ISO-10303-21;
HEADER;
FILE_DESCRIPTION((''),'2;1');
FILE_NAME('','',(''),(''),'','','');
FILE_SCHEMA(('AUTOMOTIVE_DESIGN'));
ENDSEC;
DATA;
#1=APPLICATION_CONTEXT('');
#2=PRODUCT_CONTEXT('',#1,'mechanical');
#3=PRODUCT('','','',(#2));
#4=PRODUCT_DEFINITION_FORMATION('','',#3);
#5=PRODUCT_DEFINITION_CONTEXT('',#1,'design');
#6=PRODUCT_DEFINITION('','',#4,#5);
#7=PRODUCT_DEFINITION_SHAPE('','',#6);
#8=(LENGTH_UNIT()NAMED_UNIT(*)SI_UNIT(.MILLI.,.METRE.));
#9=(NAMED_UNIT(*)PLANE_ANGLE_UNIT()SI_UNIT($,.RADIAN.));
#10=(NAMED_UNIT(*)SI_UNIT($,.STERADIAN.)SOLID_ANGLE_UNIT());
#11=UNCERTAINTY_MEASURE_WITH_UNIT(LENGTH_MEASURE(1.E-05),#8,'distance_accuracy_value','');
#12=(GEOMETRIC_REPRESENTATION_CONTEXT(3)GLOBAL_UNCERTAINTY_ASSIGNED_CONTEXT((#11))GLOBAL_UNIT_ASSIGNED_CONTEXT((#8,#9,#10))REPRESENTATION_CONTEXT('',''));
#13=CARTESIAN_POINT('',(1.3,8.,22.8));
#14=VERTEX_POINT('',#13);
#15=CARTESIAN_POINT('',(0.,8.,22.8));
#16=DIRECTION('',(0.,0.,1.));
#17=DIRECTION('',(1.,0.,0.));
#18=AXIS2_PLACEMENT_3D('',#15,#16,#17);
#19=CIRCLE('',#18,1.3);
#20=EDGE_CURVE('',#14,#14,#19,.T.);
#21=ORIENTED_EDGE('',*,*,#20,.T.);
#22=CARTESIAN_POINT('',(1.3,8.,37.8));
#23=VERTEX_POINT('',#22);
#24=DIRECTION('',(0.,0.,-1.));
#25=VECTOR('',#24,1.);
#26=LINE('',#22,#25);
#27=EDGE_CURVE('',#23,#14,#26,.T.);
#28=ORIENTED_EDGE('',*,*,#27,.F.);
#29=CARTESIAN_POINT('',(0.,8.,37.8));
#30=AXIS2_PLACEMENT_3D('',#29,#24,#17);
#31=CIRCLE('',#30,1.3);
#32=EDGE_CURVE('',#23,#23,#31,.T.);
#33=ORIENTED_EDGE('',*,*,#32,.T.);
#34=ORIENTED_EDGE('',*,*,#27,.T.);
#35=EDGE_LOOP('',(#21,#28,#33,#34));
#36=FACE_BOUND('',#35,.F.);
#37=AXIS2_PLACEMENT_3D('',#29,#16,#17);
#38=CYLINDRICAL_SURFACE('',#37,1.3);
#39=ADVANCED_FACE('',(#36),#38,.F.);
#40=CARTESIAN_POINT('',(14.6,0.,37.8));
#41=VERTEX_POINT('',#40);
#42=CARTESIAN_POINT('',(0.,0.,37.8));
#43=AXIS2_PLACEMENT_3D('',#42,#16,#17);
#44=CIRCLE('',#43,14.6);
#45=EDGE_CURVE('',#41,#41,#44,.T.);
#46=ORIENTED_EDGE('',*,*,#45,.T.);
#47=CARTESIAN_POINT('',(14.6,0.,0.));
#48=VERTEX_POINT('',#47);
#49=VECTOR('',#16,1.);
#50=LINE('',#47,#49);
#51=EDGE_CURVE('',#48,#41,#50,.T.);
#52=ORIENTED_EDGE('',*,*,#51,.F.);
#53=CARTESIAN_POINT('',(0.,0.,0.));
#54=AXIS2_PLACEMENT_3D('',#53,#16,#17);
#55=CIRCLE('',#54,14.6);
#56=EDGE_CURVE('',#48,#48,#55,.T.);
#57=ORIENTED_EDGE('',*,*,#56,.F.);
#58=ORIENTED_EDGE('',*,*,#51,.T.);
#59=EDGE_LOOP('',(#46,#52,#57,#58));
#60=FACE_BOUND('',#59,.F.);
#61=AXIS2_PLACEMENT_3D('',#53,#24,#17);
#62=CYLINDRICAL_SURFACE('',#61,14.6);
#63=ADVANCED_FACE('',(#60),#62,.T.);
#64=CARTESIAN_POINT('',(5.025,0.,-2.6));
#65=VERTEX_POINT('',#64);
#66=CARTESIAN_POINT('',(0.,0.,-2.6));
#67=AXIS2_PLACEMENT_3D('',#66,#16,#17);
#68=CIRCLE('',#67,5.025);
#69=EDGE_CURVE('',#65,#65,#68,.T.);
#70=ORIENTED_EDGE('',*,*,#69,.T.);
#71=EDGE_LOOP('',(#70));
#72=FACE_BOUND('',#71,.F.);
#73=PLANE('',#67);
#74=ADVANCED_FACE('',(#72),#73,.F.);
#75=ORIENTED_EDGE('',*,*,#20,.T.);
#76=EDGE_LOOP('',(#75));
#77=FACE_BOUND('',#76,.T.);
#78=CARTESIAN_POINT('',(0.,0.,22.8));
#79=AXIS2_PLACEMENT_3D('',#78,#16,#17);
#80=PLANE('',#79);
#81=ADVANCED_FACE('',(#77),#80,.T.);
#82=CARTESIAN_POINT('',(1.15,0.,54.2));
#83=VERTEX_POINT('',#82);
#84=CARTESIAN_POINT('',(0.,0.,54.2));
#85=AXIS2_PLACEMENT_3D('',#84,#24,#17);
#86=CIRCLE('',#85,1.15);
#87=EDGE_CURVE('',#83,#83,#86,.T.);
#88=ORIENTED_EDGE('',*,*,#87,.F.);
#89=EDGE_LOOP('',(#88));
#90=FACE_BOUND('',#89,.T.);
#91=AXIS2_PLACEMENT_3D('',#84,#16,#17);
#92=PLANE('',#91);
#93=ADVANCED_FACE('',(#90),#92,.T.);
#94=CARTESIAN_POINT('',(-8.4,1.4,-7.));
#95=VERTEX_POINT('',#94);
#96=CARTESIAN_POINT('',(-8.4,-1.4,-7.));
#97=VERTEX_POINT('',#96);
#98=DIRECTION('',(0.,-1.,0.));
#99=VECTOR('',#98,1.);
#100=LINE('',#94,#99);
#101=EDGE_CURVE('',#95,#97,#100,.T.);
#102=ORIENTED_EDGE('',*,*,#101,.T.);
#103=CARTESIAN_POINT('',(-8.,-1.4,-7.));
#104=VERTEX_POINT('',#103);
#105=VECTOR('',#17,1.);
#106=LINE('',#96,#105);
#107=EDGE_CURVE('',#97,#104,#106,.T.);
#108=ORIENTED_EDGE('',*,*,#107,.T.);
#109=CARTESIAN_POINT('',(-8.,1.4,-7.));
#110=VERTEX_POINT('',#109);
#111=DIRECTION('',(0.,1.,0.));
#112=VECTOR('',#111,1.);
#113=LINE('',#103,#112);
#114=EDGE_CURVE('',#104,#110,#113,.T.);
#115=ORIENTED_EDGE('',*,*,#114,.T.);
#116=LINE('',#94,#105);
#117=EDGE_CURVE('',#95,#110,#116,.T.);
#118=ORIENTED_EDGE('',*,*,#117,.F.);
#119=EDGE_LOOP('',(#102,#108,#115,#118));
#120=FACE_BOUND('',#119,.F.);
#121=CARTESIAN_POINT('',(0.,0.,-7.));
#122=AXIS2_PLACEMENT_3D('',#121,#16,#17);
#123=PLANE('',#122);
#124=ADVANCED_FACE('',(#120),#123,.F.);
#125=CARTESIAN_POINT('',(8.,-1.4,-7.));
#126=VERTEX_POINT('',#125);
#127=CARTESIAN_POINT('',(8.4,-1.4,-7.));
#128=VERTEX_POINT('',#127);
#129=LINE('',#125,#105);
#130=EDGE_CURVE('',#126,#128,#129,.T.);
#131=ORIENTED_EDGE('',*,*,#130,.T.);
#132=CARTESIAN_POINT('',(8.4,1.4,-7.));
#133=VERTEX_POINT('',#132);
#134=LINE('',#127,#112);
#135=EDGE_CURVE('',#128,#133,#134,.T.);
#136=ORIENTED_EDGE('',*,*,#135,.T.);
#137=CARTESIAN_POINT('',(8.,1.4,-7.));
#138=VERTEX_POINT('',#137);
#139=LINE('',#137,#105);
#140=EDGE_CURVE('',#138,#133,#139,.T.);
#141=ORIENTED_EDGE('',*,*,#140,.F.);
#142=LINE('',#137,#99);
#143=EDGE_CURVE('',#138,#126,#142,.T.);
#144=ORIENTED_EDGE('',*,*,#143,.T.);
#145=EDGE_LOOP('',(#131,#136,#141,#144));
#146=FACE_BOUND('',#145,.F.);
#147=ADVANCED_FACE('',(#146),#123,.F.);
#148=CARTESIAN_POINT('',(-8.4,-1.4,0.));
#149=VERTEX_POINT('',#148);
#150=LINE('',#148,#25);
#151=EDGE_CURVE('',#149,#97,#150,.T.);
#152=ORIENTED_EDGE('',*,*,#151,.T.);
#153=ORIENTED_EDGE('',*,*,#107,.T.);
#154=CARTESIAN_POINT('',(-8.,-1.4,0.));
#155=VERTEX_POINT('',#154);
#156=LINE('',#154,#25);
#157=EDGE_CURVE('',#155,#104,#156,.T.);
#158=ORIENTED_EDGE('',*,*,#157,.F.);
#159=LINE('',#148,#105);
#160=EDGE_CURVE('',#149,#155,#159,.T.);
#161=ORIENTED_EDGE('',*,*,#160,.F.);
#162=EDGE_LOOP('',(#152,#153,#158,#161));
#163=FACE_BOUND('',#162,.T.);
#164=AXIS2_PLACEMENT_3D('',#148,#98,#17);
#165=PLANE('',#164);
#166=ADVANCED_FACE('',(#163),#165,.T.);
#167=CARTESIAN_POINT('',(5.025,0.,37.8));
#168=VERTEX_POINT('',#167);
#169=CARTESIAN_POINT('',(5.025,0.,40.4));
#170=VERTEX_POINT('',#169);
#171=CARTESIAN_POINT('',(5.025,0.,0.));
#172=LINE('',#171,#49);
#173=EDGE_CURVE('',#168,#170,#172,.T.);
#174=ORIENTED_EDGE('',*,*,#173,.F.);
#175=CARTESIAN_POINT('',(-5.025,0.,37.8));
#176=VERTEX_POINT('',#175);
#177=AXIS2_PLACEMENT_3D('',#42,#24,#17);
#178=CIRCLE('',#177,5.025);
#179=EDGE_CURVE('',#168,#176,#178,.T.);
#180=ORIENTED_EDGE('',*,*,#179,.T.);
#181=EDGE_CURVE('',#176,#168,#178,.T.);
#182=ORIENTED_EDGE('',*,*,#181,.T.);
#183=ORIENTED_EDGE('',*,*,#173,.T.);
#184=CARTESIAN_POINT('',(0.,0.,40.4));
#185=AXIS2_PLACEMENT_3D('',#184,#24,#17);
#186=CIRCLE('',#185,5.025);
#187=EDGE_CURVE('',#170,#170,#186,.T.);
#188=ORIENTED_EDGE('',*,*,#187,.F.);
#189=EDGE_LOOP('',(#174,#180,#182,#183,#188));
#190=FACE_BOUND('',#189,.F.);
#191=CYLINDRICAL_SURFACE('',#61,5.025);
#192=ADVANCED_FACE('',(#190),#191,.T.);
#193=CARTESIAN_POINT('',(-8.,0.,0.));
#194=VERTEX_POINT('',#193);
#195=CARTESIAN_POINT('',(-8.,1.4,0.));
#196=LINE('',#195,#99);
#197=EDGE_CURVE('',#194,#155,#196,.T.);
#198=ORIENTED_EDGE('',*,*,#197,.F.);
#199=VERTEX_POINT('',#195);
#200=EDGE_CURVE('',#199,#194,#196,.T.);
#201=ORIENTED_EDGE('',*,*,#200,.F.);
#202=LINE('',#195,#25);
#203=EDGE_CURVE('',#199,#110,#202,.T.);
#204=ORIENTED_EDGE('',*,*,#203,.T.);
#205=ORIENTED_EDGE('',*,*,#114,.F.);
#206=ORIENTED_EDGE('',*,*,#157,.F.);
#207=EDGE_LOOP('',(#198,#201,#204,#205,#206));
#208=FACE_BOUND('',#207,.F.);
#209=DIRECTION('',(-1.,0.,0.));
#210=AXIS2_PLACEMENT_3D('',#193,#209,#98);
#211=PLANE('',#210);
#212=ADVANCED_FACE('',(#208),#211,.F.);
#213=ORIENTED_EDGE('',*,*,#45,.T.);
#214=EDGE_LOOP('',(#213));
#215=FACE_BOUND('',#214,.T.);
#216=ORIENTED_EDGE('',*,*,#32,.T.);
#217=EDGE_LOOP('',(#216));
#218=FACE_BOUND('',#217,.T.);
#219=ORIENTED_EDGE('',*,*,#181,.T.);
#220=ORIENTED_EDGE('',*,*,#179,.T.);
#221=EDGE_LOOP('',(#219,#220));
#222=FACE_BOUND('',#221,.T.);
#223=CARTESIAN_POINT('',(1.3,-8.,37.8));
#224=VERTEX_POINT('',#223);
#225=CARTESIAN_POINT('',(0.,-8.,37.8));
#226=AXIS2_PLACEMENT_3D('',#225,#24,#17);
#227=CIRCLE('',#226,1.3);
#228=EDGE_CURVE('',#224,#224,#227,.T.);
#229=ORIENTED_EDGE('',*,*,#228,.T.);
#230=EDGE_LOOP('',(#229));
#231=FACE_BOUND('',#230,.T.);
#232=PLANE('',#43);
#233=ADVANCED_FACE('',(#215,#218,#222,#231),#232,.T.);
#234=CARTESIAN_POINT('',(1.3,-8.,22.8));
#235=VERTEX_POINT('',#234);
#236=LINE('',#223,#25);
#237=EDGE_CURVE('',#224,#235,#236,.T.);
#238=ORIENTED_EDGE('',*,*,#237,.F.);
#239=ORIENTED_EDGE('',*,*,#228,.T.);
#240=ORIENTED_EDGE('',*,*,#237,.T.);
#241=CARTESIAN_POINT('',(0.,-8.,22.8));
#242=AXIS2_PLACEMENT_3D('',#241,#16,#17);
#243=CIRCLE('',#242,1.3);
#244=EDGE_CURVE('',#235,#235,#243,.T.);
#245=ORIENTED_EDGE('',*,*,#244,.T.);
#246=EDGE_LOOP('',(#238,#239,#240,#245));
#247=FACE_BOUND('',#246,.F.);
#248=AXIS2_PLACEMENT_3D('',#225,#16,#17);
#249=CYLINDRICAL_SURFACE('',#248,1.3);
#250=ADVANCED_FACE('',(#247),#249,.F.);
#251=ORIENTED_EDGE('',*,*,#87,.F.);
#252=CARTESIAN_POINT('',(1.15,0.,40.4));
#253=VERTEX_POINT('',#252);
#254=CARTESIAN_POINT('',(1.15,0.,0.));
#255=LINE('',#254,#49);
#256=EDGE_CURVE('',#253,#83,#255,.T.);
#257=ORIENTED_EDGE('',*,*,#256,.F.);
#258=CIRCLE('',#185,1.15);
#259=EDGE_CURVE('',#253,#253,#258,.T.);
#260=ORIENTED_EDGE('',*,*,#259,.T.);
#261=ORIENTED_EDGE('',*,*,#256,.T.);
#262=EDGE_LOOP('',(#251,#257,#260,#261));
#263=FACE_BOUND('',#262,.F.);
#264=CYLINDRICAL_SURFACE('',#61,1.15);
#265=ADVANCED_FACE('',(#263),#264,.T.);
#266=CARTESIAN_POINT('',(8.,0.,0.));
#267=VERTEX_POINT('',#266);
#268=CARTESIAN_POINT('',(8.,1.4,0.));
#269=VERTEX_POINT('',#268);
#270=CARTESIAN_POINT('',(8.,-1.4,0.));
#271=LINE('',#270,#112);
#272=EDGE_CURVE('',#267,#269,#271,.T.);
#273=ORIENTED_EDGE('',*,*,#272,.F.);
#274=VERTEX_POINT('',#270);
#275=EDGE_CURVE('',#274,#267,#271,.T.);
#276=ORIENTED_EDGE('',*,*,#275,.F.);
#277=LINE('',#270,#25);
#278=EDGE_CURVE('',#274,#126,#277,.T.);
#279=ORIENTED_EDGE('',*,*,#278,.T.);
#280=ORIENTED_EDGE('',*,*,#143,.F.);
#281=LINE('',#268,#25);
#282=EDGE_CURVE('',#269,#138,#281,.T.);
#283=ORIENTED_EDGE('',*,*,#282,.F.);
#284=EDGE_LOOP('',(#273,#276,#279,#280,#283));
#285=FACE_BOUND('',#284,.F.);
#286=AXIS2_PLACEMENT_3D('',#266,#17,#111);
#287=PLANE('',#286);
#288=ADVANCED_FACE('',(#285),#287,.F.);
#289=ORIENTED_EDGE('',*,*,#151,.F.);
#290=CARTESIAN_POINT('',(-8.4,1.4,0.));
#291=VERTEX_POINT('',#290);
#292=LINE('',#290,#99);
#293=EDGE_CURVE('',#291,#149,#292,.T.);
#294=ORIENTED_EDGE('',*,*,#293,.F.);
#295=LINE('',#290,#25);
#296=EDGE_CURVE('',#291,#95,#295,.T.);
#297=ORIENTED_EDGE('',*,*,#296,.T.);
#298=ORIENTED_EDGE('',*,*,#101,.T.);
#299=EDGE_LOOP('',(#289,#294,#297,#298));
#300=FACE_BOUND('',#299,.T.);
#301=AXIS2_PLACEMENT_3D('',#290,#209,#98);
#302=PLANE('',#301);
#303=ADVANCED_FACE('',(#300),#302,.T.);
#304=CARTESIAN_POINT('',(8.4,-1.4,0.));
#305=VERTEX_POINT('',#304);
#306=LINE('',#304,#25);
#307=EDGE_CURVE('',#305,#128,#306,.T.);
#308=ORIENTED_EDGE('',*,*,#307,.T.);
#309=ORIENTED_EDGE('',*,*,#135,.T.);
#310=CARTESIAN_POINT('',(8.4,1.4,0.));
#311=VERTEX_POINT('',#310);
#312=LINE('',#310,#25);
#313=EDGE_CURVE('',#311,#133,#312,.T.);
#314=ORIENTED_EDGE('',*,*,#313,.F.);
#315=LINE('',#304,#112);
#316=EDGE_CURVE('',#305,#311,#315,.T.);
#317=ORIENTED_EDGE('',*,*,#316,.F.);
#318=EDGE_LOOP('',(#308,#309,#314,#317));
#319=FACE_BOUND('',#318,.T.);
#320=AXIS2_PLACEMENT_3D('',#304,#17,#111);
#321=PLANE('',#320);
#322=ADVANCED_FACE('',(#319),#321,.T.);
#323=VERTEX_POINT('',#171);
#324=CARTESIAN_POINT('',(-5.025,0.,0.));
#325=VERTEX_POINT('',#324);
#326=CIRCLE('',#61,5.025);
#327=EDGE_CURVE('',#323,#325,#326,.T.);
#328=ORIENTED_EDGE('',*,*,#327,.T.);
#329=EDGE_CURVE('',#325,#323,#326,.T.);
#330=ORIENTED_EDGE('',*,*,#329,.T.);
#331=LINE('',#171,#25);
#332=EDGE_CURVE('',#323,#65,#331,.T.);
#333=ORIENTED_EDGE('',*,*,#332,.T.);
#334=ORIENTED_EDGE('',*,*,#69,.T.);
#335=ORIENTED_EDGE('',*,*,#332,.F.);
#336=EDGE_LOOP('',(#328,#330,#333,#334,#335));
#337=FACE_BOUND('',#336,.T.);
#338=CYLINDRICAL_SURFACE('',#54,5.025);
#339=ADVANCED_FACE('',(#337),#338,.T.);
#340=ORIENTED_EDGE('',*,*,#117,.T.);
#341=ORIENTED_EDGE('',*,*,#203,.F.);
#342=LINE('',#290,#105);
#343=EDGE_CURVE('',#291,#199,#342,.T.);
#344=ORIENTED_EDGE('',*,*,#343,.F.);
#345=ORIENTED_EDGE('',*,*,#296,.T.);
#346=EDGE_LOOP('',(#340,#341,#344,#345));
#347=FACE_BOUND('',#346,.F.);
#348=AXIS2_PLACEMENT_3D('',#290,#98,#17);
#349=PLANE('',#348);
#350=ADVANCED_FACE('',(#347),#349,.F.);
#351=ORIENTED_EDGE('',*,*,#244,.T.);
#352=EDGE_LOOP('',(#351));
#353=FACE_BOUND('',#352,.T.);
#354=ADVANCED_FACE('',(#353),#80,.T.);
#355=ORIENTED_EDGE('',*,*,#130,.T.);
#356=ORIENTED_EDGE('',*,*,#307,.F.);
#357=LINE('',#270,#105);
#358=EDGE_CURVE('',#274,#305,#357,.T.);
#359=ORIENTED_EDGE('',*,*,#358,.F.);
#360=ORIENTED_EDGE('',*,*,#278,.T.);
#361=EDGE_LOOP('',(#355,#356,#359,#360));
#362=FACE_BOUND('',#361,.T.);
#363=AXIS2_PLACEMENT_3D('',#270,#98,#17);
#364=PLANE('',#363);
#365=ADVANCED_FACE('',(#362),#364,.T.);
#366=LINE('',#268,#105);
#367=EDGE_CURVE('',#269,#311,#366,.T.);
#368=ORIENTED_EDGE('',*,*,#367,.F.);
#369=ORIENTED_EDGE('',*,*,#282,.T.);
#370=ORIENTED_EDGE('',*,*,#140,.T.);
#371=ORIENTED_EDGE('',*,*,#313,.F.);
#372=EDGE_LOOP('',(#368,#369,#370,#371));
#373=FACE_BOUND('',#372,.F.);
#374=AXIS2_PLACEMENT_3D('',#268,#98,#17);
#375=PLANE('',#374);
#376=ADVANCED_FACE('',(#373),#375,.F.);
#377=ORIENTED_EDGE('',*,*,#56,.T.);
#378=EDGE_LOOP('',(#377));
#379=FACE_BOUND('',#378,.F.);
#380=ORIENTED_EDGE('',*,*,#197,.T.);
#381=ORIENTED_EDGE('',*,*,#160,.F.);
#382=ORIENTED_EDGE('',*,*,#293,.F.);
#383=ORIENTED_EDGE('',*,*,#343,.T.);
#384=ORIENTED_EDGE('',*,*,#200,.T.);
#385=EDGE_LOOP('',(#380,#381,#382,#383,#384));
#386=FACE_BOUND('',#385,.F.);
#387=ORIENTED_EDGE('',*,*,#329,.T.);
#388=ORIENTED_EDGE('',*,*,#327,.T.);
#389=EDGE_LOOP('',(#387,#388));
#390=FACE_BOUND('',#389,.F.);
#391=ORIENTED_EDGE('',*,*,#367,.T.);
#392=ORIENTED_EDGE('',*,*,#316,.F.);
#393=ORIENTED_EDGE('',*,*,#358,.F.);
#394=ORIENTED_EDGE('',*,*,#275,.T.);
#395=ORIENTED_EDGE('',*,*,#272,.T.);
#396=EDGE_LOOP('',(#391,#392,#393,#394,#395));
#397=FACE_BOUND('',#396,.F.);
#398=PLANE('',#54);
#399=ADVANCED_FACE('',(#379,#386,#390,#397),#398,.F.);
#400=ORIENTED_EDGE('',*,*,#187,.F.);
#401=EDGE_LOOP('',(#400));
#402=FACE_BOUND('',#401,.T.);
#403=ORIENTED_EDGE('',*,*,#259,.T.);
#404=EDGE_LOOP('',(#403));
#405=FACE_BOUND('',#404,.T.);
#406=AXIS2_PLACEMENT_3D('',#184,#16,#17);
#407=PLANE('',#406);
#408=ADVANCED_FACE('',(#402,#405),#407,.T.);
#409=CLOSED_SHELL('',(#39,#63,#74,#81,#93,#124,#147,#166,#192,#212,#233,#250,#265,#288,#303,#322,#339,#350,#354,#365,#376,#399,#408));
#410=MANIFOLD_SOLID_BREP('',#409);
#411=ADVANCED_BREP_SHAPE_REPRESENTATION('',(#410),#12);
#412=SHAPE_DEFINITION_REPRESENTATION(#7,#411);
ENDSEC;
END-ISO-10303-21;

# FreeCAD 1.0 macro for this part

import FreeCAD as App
import Part
import Sketcher

V = App.Vector
Q = App.Units.Quantity


def add_polygon(sketch, points):
    """Adds a closed chain of lines whose ends are joined by coincident constraints."""
    first, n = sketch.GeometryCount, len(points)
    for a, b in zip(points, points[1:] + points[:1]):
        sketch.addGeometry(Part.LineSegment(App.Vector(*a, 0), App.Vector(*b, 0)), False)
    for i in range(n):
        sketch.addConstraint(Sketcher.Constraint("Coincident", first + i, 2, first + (i + 1) % n, 1))

doc = App.newDocument("Part")
body = doc.addObject("PartDesign::Body", "Body")

# Sketch on XY plane
sketch1 = doc.addObject("Sketcher::SketchObject", "Sketch")
body.addObject(sketch1)
sketch1.AttachmentSupport = (doc.XY_Plane, [""])
sketch1.MapMode = "FlatFace"
sketch1.addGeometry(Part.Circle(V(0, 0, 0), V(0, 0, 1), 14.6), False)
sketch1.addConstraint([
    Sketcher.Constraint("Coincident", 0, 3, -1, 1),
    Sketcher.Constraint("Diameter", 0, Q("29.2 mm")),
])
pad1 = doc.addObject("PartDesign::Pad", "Pad")
body.addObject(pad1)
pad1.Profile = sketch1
pad1.Length = 37.8

# Sketch on XY plane
sketch2 = doc.addObject("Sketcher::SketchObject", "Sketch001")
body.addObject(sketch2)
sketch2.AttachmentSupport = (doc.XY_Plane, [""])
sketch2.MapMode = "FlatFace"
sketch2.addGeometry(Part.Circle(V(0, 0, 0), V(0, 0, 1), 5.025), False)
sketch2.addConstraint([
    Sketcher.Constraint("Coincident", 0, 3, -1, 1),
    Sketcher.Constraint("Diameter", 0, Q("10.05 mm")),
])
pad2 = doc.addObject("PartDesign::Pad", "Pad001")
body.addObject(pad2)
pad2.Profile = sketch2
pad2.Length = 2.6
pad2.Reversed = True

# Sketch on XY plane
sketch3 = doc.addObject("Sketcher::SketchObject", "Sketch002")
body.addObject(sketch3)
sketch3.AttachmentSupport = (doc.XY_Plane, [""])
sketch3.MapMode = "FlatFace"
sketch3.addGeometry(Part.Circle(V(0, 0, 0), V(0, 0, 1), 5.025), False)
sketch3.addConstraint([
    Sketcher.Constraint("Coincident", 0, 3, -1, 1),
    Sketcher.Constraint("Diameter", 0, Q("10.05 mm")),
])
pad3 = doc.addObject("PartDesign::Pad", "Pad002")
body.addObject(pad3)
pad3.Profile = sketch3
pad3.Length = 40.4

# Sketch on XY plane
sketch4 = doc.addObject("Sketcher::SketchObject", "Sketch003")
body.addObject(sketch4)
sketch4.AttachmentSupport = (doc.XY_Plane, [""])
sketch4.MapMode = "FlatFace"
sketch4.addGeometry(Part.Circle(V(0, 0, 0), V(0, 0, 1), 1.15), False)
sketch4.addConstraint([
    Sketcher.Constraint("Coincident", 0, 3, -1, 1),
    Sketcher.Constraint("Diameter", 0, Q("2.3 mm")),
])
pad4 = doc.addObject("PartDesign::Pad", "Pad003")
body.addObject(pad4)
pad4.Profile = sketch4
pad4.Length = 54.2

# Sketch on XY plane
sketch5 = doc.addObject("Sketcher::SketchObject", "Sketch004")
body.addObject(sketch5)
sketch5.AttachmentSupport = (doc.XY_Plane, [""])
sketch5.MapMode = "FlatFace"
sketch5.AttachmentOffset = App.Placement(V(0, 0, 37.8), App.Rotation())
sketch5.addGeometry([
    Part.Circle(V(0, 8, 0), V(0, 0, 1), 1.3),
    Part.Circle(V(0, -8, 0), V(0, 0, 1), 1.3),
], False)
sketch5.addConstraint([
    Sketcher.Constraint("Equal", 0, 1),
    Sketcher.Constraint("Symmetric", 0, 3, 1, 3, -1, 1),
    Sketcher.Constraint("PointOnObject", 0, 3, -2),
    Sketcher.Constraint("Diameter", 0, Q("2.6 mm")),
    Sketcher.Constraint("DistanceY", -1, 1, 0, 3, Q("8 mm")),
])
pocket1 = doc.addObject("PartDesign::Pocket", "Pocket")
body.addObject(pocket1)
pocket1.Profile = sketch5
pocket1.Length = 15

# Sketch on XY plane
sketch6 = doc.addObject("Sketcher::SketchObject", "Sketch005")
body.addObject(sketch6)
sketch6.AttachmentSupport = (doc.XY_Plane, [""])
sketch6.MapMode = "FlatFace"
add_polygon(sketch6, [(-8, -1.4), (-8, 1.4), (-8.4, 1.4), (-8.4, -1.4)])  # lines 0-3
add_polygon(sketch6, [(8, 1.4), (8, -1.4), (8.4, -1.4), (8.4, 1.4)])  # lines 4-7
sketch6.addConstraint([
    Sketcher.Constraint("Vertical", 0),
    Sketcher.Constraint("Horizontal", 1),
    Sketcher.Constraint("Vertical", 2),
    Sketcher.Constraint("Horizontal", 3),
    Sketcher.Constraint("Vertical", 4),
    Sketcher.Constraint("Horizontal", 5),
    Sketcher.Constraint("Vertical", 6),
    Sketcher.Constraint("Horizontal", 7),
    Sketcher.Constraint("Symmetric", 0, 2, 4, 2, -1, 1),
    Sketcher.Constraint("Symmetric", 2, 2, 6, 2, -1, 1),
    Sketcher.Constraint("Horizontal", 3, 2, 4, 2),
    Sketcher.Constraint("DistanceX", 1, 2, 1, 1, Q("0.4 mm")),
    Sketcher.Constraint("DistanceY", 0, 1, 0, 2, Q("2.8 mm")),
    Sketcher.Constraint("DistanceX", 0, 2, -1, 1, Q("8 mm")),
])
pad5 = doc.addObject("PartDesign::Pad", "Pad004")
body.addObject(pad5)
pad5.Profile = sketch6
pad5.Length = 7
pad5.Reversed = True

doc.recompute()
